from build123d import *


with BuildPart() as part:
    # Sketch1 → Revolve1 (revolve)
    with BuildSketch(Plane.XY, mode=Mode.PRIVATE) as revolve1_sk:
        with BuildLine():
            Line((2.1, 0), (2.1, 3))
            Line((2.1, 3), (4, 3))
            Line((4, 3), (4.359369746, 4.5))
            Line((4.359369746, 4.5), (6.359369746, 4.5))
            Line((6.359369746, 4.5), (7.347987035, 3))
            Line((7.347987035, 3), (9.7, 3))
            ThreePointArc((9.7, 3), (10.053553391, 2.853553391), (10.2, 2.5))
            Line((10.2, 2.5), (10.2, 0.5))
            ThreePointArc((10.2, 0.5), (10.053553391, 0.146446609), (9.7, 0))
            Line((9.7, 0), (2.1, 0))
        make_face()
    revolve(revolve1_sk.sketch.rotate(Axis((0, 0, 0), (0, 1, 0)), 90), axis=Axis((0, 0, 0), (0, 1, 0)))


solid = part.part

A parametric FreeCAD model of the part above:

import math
import FreeCAD as App
import Part
import Sketcher

V = App.Vector

doc = App.newDocument("Part")
body = doc.addObject("PartDesign::Body", "Body")

# Sketch on XY plane
sketch1 = body.newObject("Sketcher::SketchObject", "Sketch")
sketch1.AttachmentSupport = (doc.getObject("XY_Plane"), [""])
sketch1.MapMode = "FlatFace"
sketch1.addGeometry(Part.LineSegment(V(2.1, 3, 0), V(2.1, 0, 0)), False)
sketch1.addGeometry(Part.LineSegment(V(2.1, 0, 0), V(9.7, 0, 0)), False)
sketch1.addGeometry(Part.ArcOfCircle(Part.Circle(V(9.7, 0.5, 0), V(0, 0, 1), 0.5), math.radians(-90), math.radians(0)), False)
sketch1.addGeometry(Part.LineSegment(V(10.2, 0.5, 0), V(10.2, 2.5, 0)), False)
sketch1.addGeometry(Part.ArcOfCircle(Part.Circle(V(9.7, 2.5, 0), V(0, 0, 1), 0.5), math.radians(0), math.radians(90)), False)
sketch1.addGeometry(Part.LineSegment(V(9.7, 3, 0), V(7.347987, 3, 0)), False)
sketch1.addGeometry(Part.LineSegment(V(7.347987, 3, 0), V(6.35937, 4.5, 0)), False)
sketch1.addGeometry(Part.LineSegment(V(6.35937, 4.5, 0), V(4.35937, 4.5, 0)), False)
sketch1.addGeometry(Part.LineSegment(V(4.35937, 4.5, 0), V(4, 3, 0)), False)
sketch1.addGeometry(Part.LineSegment(V(4, 3, 0), V(2.1, 3, 0)), False)
sketch1.addConstraint(Sketcher.Constraint("Coincident", 0, 2, 1, 1))
sketch1.addConstraint(Sketcher.Constraint("Tangent", 1, 2, 2, 1))
sketch1.addConstraint(Sketcher.Constraint("Tangent", 2, 2, 3, 1))
sketch1.addConstraint(Sketcher.Constraint("Tangent", 3, 2, 4, 1))
sketch1.addConstraint(Sketcher.Constraint("Tangent", 4, 2, 5, 1))
sketch1.addConstraint(Sketcher.Constraint("Coincident", 5, 2, 6, 1))
sketch1.addConstraint(Sketcher.Constraint("Coincident", 6, 2, 7, 1))
sketch1.addConstraint(Sketcher.Constraint("Coincident", 7, 2, 8, 1))
sketch1.addConstraint(Sketcher.Constraint("Coincident", 8, 2, 9, 1))
sketch1.addConstraint(Sketcher.Constraint("Coincident", 9, 2, 0, 1))
sketch1.addConstraint(Sketcher.Constraint("Vertical", 0))
sketch1.addConstraint(Sketcher.Constraint("Horizontal", 1))
sketch1.addConstraint(Sketcher.Constraint("Vertical", 3))
sketch1.addConstraint(Sketcher.Constraint("Horizontal", 5))
sketch1.addConstraint(Sketcher.Constraint("Horizontal", 7))
sketch1.addConstraint(Sketcher.Constraint("Horizontal", 9))
sketch1.addConstraint(Sketcher.Constraint("Equal", 2, 4))
sketch1.addConstraint(Sketcher.Constraint("PointOnObject", 0, 2, -1))
sketch1.addConstraint(Sketcher.Constraint("Horizontal", 5, 2, 8, 2))
sketch1.addConstraint(Sketcher.Constraint("Equal", 7, 3))
sketch1.addConstraint(Sketcher.Constraint("Radius", 2, 0.5))
sketch1.addConstraint(Sketcher.Constraint("DistanceX", 7, 2, 7, 1, 2.0))
sketch1.addConstraint(Sketcher.Constraint("DistanceX", 1, 1, 1, 2, 7.6))
sketch1.addConstraint(Sketcher.Constraint("DistanceX", 9, 2, 9, 1, 1.9))
sketch1.addConstraint(Sketcher.Constraint("DistanceX", -1, 1, 8, 2, 4.0))
sketch1.addConstraint(Sketcher.Constraint("DistanceY", 4, 3, 6, 2, 2.0))
sketch1.addConstraint(Sketcher.Constraint("Distance", 8, 1.542448))
sketch1.addConstraint(Sketcher.Constraint("DistanceX", 5, 2, 5, 1, 2.352013))
revolution = body.newObject("PartDesign::Revolution", "Revolution")
revolution.Profile = sketch1
revolution.ReferenceAxis = (sketch1, ["V_Axis"])
revolution.Angle = 360

doc.recompute()
